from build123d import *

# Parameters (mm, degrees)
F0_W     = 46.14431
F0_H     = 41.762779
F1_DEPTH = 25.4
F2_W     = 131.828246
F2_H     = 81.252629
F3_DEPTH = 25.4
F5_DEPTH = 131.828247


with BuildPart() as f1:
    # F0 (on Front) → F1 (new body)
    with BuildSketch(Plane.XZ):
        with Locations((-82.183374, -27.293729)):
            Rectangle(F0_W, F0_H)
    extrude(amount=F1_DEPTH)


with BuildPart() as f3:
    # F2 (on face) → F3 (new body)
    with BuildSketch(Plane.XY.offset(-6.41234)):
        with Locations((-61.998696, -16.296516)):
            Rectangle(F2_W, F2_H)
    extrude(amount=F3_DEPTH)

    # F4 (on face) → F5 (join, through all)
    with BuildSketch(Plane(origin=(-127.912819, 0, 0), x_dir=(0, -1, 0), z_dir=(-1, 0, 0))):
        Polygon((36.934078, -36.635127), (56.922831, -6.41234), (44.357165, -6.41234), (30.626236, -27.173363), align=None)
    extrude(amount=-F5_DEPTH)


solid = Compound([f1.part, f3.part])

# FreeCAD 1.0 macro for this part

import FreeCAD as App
import Part
import Sketcher
from FreeCAD import Vector
Q = App.Units.Quantity


def add_polygon(sketch, points):
    """Adds a closed chain of lines whose ends are joined by coincident constraints."""
    first, n = sketch.GeometryCount, len(points)
    for a, b in zip(points, points[1:] + points[:1]):
        sketch.addGeometry(Part.LineSegment(App.Vector(*a, 0), App.Vector(*b, 0)), False)
    for i in range(n):
        sketch.addConstraint(Sketcher.Constraint("Coincident", first + i, 2, first + (i + 1) % n, 1))

doc = App.newDocument("Part")
body = doc.addObject("PartDesign::Body", "Body")

# Sketch on XZ plane
sketch1 = doc.addObject("Sketcher::SketchObject", "Sketch")
body.addObject(sketch1)
sketch1.AttachmentSupport = (doc.XZ_Plane, [""])
sketch1.MapMode = "FlatFace"
add_polygon(sketch1, [(-105, -6), (-105, -48), (-59, -48), (-59, -6)])  # lines 0-3
sketch1.addConstraint(Sketcher.Constraint("Vertical", 0))
sketch1.addConstraint(Sketcher.Constraint("Horizontal", 1))
sketch1.addConstraint(Sketcher.Constraint("Vertical", 2))
sketch1.addConstraint(Sketcher.Constraint("Horizontal", 3))
sketch1.addConstraint(Sketcher.Constraint("DistanceX", 1, 1, 1, 2, Q("46.14431 mm")))
sketch1.addConstraint(Sketcher.Constraint("DistanceY", 0, 2, 0, 1, Q("41.762779 mm")))
sketch1.addConstraint(Sketcher.Constraint("DistanceX", 0, 2, -1, 1, Q("105.255529 mm")))
sketch1.addConstraint(Sketcher.Constraint("DistanceY", 0, 2, -1, 1, Q("48.175119 mm")))
pad1 = doc.addObject("PartDesign::Pad", "Pad")
body.addObject(pad1)
pad1.Profile = sketch1
pad1.Length = Q("1 in")
body2 = doc.addObject("PartDesign::Body", "Body001")

# Sketch on XY plane
sketch2 = doc.addObject("Sketcher::SketchObject", "Sketch001")
body2.addObject(sketch2)
sketch2.AttachmentSupport = (doc.getObject("XY_Plane001"), [""])
sketch2.MapMode = "FlatFace"
sketch2.AttachmentOffset = App.Placement(Vector(0, 0, -6.41234), App.Rotation())
add_polygon(sketch2, [(-128, 24), (-128, -57), (4, -57), (4, 24)])  # lines 0-3
sketch2.addConstraint(Sketcher.Constraint("Vertical", 0))
sketch2.addConstraint(Sketcher.Constraint("Horizontal", 1))
sketch2.addConstraint(Sketcher.Constraint("Vertical", 2))
sketch2.addConstraint(Sketcher.Constraint("Horizontal", 3))
sketch2.addConstraint(Sketcher.Constraint("DistanceY", 0, 2, 0, 1, Q("81.252629 mm")))
sketch2.addConstraint(Sketcher.Constraint("DistanceY", -1, 1, 2, 2, Q("24.329798 mm")))
sketch2.addConstraint(Sketcher.Constraint("DistanceX", 1, 1, 1, 2, Q("131.828246 mm")))
sketch2.addConstraint(Sketcher.Constraint("DistanceX", 0, 2, -1, 1, Q("127.912819 mm")))
pad2 = doc.addObject("PartDesign::Pad", "Pad001")
body2.addObject(pad2)
pad2.Profile = sketch2
pad2.Length = Q("1 in")

# Sketch on YZ plane
sketch3 = doc.addObject("Sketcher::SketchObject", "Sketch002")
body2.addObject(sketch3)
sketch3.AttachmentSupport = (doc.getObject("YZ_Plane001"), [""])
sketch3.MapMode = "FlatFace"
sketch3.AttachmentOffset = App.Placement(Vector(0, 0, -127.912819), App.Rotation())
add_polygon(sketch3, [(-37, -37), (-57, -6), (-44, -6), (-31, -27)])  # lines 0-3
sketch3.addConstraint(Sketcher.Constraint("Horizontal", 1))
sketch3.addConstraint(Sketcher.Constraint("Parallel", 0, 2))
sketch3.addConstraint(Sketcher.Constraint("Distance", 2, Q("24.890932 mm")))
sketch3.addConstraint(Sketcher.Constraint("DistanceX", 1, 1, 1, 2, Q("12.565666 mm")))
sketch3.addConstraint(Sketcher.Constraint("DistanceX", 0, 2, -1, 1, Q("56.922831 mm")))
sketch3.addConstraint(Sketcher.Constraint("DistanceY", 0, 2, -1, 1, Q("6.41234 mm")))
sketch3.addConstraint(Sketcher.Constraint("DistanceX", 1, 2, 2, 2, Q("13.730929 mm")))
sketch3.addConstraint(Sketcher.Constraint("Distance", 0, Q("36.234888 mm")))
pad3 = doc.addObject("PartDesign::Pad", "Pad002")
body2.addObject(pad3)
pad3.Profile = sketch3
pad3.Length = 131.828247

doc.recompute()
